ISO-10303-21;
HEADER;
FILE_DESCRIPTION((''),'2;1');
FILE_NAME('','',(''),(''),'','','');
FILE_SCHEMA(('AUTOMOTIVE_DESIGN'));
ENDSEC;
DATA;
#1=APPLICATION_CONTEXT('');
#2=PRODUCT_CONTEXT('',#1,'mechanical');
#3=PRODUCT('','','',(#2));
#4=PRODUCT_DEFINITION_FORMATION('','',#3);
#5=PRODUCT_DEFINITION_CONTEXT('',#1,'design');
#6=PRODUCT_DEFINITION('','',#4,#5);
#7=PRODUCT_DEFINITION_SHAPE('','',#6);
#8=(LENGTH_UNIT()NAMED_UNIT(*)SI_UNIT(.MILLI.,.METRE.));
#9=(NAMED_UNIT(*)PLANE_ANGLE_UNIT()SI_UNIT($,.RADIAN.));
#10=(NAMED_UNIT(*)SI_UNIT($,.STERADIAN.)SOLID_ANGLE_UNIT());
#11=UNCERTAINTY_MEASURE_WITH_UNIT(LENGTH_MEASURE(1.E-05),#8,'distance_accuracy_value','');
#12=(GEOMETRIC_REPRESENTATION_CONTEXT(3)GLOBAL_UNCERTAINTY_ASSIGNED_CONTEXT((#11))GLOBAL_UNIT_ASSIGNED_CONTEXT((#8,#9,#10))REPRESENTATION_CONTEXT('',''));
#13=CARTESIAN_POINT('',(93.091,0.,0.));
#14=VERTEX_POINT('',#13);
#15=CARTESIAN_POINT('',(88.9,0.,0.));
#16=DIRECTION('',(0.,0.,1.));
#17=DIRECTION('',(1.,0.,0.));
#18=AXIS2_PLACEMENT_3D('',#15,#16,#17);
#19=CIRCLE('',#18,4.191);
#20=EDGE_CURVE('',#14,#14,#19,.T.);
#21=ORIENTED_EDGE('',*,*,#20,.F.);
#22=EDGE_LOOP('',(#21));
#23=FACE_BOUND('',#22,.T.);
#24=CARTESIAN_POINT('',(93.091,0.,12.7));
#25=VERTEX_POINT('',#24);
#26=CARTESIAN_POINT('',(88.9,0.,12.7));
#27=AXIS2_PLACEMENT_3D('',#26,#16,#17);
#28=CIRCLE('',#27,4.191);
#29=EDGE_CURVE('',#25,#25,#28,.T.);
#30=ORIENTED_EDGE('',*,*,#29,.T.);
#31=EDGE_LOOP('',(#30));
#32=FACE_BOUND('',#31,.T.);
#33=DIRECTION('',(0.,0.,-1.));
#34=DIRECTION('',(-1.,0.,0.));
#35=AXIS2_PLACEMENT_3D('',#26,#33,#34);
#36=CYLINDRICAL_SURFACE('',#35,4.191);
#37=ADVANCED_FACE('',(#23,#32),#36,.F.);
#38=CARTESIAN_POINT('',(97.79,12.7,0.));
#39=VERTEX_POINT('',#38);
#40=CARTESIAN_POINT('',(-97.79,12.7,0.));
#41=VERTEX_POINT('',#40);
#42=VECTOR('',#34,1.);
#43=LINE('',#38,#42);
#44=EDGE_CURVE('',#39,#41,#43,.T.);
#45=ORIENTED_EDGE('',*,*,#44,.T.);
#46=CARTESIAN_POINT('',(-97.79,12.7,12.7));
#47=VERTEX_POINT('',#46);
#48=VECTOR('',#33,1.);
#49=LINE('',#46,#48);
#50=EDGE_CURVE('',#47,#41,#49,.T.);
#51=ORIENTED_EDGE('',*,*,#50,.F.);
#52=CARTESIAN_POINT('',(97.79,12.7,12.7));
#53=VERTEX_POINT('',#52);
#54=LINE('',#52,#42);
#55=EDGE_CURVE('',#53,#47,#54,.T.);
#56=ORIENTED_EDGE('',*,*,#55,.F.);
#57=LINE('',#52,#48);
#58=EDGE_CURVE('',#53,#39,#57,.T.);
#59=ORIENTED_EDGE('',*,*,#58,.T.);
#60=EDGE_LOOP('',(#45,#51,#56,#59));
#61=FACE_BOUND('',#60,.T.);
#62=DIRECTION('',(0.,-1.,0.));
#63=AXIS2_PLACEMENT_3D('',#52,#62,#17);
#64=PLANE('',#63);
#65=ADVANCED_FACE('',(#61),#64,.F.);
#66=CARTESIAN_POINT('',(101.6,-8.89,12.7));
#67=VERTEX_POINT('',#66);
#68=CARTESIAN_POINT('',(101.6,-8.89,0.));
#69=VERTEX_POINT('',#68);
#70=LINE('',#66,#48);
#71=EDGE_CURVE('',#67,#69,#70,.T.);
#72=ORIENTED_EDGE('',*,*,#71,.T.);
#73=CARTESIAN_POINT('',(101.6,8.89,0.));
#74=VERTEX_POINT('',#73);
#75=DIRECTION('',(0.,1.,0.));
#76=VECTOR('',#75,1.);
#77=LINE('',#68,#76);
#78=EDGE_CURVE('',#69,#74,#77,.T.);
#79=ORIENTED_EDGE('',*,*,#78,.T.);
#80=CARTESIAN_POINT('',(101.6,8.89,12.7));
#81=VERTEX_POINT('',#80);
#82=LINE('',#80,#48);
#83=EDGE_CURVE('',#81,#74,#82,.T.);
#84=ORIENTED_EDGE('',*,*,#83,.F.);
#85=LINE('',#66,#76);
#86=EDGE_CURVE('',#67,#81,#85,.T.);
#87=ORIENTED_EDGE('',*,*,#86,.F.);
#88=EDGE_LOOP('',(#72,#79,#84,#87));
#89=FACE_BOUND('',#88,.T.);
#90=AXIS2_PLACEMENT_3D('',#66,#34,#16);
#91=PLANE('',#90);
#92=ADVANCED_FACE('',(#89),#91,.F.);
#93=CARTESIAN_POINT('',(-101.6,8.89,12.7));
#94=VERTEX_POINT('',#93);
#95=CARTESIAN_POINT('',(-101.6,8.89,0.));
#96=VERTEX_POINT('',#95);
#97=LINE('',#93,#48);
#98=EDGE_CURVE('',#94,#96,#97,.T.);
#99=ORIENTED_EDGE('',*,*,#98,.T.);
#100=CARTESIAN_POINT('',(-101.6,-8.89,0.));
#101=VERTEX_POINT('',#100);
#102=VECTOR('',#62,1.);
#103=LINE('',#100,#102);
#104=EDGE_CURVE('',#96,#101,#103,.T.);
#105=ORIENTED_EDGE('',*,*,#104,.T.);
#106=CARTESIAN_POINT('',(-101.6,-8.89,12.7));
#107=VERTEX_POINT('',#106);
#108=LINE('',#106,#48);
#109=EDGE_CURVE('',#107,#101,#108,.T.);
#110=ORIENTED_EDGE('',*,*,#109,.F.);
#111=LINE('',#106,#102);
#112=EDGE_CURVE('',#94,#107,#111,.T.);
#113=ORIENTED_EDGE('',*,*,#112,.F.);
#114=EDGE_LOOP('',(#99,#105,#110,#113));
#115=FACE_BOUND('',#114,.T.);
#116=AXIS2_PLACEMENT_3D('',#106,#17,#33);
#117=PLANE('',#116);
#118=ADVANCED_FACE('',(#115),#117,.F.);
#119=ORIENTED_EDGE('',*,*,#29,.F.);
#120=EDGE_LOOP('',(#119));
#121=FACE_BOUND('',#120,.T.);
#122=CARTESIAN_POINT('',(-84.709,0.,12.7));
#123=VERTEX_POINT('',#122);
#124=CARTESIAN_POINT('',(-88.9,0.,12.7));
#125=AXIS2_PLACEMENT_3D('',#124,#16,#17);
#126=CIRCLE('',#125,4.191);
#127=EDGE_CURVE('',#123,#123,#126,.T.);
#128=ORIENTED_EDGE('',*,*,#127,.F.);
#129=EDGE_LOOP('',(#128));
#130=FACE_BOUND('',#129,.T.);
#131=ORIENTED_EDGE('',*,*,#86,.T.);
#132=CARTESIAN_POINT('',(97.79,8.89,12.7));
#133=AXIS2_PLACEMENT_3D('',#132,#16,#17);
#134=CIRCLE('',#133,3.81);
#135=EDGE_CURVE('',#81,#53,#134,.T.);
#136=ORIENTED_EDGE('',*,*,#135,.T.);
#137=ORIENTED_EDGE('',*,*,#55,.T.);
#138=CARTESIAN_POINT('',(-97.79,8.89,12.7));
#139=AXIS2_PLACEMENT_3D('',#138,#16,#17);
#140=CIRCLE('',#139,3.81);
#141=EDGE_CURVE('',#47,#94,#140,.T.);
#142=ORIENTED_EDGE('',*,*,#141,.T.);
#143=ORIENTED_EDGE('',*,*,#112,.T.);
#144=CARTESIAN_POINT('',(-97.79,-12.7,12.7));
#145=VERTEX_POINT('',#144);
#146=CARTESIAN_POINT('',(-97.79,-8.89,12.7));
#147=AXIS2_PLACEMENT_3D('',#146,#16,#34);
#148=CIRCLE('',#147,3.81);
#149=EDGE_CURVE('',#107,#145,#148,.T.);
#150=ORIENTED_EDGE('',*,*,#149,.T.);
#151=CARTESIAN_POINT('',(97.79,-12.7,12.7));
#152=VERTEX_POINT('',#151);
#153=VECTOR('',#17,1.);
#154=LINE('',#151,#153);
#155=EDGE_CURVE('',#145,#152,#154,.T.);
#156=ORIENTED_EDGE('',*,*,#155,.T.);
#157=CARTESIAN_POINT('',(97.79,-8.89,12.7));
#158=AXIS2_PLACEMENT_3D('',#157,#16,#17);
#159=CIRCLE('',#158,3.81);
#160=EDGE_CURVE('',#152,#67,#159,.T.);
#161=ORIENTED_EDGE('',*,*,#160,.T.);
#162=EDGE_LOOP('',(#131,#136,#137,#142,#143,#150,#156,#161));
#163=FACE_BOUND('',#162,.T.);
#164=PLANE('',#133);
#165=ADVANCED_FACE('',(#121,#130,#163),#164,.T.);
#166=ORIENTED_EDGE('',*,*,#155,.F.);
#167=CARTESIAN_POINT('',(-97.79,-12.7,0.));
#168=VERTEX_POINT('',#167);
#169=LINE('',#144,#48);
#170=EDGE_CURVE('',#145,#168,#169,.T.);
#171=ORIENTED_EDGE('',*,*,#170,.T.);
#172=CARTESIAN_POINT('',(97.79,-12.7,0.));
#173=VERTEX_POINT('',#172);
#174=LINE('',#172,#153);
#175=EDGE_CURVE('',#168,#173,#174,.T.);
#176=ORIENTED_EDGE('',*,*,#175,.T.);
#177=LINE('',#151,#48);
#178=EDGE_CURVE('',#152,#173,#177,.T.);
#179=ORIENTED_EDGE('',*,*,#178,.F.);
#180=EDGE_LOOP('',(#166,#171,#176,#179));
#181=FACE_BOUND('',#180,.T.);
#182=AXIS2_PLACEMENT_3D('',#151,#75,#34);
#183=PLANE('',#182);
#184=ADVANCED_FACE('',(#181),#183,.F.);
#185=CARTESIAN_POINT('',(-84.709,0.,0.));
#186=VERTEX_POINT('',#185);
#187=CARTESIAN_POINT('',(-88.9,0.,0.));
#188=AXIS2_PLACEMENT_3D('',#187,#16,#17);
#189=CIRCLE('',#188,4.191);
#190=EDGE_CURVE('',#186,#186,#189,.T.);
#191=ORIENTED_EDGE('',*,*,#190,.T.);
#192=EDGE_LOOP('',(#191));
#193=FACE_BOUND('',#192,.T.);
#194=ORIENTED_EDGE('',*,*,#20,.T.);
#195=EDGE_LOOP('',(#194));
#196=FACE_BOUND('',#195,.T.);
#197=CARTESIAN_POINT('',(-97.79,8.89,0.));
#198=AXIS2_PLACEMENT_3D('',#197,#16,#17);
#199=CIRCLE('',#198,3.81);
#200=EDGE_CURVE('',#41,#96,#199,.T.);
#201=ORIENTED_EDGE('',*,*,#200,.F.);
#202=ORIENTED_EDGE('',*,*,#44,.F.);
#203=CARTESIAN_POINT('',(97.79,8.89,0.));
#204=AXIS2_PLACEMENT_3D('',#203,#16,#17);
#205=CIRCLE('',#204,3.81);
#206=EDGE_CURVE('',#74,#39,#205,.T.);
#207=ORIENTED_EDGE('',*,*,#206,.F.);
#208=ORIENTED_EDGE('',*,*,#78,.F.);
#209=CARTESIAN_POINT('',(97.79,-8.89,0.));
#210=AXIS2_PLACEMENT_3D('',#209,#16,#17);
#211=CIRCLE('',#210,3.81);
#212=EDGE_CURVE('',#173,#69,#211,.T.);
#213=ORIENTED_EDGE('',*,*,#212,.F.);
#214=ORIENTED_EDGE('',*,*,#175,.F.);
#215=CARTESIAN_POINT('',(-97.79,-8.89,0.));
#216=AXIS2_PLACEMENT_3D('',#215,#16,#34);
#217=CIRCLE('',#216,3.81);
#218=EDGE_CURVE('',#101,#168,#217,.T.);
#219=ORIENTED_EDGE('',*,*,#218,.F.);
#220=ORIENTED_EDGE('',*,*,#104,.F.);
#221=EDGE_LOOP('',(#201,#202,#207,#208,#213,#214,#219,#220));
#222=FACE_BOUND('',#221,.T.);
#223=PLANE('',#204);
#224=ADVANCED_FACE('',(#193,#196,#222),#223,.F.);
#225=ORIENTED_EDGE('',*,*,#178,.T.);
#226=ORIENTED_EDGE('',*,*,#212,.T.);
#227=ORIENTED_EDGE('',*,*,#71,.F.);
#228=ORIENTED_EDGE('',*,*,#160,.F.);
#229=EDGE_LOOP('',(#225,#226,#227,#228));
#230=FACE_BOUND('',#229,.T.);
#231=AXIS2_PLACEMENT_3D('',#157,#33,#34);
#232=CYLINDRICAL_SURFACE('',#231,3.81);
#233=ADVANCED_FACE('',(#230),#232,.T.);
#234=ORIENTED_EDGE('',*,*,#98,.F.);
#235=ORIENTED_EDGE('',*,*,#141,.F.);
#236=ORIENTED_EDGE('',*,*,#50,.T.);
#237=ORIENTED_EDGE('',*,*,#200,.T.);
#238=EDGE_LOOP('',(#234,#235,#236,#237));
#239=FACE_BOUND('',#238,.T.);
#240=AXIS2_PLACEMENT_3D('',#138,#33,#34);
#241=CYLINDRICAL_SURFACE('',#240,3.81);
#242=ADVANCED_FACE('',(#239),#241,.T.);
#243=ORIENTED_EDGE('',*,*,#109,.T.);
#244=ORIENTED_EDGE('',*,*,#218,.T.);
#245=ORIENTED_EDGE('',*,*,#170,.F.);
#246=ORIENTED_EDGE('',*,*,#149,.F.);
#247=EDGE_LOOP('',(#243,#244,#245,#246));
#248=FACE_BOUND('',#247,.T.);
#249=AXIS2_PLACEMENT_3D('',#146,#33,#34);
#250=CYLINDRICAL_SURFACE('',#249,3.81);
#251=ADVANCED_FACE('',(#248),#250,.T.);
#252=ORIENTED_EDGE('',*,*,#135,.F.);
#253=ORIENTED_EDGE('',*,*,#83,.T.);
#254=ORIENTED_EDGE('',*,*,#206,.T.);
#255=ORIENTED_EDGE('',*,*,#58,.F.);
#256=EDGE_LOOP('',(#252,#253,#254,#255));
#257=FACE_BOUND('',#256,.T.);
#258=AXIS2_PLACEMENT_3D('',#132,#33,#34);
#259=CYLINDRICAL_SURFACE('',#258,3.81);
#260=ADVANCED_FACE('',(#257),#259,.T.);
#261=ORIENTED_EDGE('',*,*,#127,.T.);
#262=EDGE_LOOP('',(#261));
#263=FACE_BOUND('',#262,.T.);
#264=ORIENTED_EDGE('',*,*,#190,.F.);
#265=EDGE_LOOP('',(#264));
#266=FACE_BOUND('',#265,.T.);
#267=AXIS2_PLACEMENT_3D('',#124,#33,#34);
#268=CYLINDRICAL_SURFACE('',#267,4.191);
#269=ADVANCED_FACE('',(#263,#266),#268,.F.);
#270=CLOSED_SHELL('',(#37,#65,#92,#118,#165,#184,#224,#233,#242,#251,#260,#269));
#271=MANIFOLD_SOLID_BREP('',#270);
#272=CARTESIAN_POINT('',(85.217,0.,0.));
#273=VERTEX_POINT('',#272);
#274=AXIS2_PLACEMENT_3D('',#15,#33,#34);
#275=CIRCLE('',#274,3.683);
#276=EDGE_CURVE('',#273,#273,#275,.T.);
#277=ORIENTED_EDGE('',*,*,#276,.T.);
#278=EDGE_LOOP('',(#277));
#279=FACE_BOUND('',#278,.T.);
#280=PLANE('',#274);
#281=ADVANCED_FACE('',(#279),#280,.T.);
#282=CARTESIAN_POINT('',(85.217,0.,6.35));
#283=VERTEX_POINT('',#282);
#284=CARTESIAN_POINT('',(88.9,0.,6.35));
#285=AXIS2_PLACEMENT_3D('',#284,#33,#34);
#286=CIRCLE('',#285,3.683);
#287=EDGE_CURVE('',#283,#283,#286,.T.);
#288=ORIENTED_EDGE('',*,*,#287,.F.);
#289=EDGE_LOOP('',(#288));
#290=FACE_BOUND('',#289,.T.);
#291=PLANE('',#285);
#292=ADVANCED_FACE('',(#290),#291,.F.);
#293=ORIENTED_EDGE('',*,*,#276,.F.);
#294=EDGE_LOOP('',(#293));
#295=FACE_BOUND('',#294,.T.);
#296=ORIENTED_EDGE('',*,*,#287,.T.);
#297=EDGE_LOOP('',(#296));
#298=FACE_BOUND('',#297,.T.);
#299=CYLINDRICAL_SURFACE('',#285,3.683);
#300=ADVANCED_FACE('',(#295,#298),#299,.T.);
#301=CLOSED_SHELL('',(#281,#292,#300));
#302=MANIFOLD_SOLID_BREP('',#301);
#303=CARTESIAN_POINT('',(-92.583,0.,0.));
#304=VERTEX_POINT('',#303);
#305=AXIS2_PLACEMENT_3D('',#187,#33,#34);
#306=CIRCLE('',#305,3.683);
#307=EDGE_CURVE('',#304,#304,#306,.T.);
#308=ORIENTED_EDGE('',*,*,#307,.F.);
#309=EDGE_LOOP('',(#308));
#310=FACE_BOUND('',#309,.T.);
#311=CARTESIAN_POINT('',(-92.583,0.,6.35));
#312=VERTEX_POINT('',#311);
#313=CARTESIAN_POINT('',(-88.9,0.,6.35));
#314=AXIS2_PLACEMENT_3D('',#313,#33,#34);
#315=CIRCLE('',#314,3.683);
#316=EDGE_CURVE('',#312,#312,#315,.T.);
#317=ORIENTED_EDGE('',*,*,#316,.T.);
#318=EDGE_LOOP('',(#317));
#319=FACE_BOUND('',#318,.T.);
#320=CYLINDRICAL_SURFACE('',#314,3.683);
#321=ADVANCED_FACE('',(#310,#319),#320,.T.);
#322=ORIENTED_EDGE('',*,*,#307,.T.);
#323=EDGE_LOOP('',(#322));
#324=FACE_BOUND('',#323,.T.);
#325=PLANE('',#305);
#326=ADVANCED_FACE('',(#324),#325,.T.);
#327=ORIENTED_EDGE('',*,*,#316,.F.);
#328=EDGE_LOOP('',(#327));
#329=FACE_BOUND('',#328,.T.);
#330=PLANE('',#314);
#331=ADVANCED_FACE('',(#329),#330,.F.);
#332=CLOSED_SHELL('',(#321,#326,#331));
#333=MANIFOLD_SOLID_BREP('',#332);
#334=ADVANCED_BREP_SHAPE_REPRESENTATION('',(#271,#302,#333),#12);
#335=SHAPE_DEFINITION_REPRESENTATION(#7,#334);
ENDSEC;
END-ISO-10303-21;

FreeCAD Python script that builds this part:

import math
import FreeCAD as App
import Part
import Sketcher

V = App.Vector
Q = App.Units.Quantity

doc = App.newDocument("Part")
params = doc.addObject("Spreadsheet::Sheet", "Params")
for row, (alias, value) in enumerate([
    ("sketch1_diameter", "0.33 in"),
    ("sketch1_radius", "0.15 in"),
    ("sketch1_width", "7.7 in"),
    ("sketch1_height", "0.7 in"),
    ("pad1_length", "0.5 in"),
    ("sketch2_diameter", "0.29 in"),
    ("pad2_length", "0.25 in"),
    ("sketch3_diameter", "0.29 in"),
    ("pad3_length", "0.25 in"),
], start=1):
    params.set(f"A{row}", alias)
    params.set(f"B{row}", "=" + value)
    params.setAlias(f"B{row}", alias)

body = doc.addObject("PartDesign::Body", "Body")

# Sketch on XY plane
sketch1 = body.newObject("Sketcher::SketchObject", "Sketch")
sketch1.AttachmentSupport = (doc.getObject("XY_Plane"), [""])
sketch1.MapMode = "FlatFace"
sketch1.addGeometry(Part.LineSegment(V(-97.8, -12.7, 0), V(97.8, -12.7, 0)), False)
sketch1.addGeometry(Part.ArcOfCircle(Part.Circle(V(97.8, -8.9, 0), V(0, 0, 1), 3.8), math.radians(-90), math.radians(0)), False)
sketch1.addGeometry(Part.LineSegment(V(101.6, -8.9, 0), V(101.6, 8.9, 0)), False)
sketch1.addGeometry(Part.ArcOfCircle(Part.Circle(V(97.8, 8.9, 0), V(0, 0, 1), 3.8), math.radians(0), math.radians(90)), False)
sketch1.addGeometry(Part.LineSegment(V(97.8, 12.7, 0), V(-97.8, 12.7, 0)), False)
sketch1.addGeometry(Part.ArcOfCircle(Part.Circle(V(-97.8, 8.9, 0), V(0, 0, 1), 3.8), math.radians(90), math.radians(180)), False)
sketch1.addGeometry(Part.LineSegment(V(-101.6, 8.9, 0), V(-101.6, -8.9, 0)), False)
sketch1.addGeometry(Part.ArcOfCircle(Part.Circle(V(-97.8, -8.9, 0), V(0, 0, 1), 3.8), math.radians(-180), math.radians(-90)), False)
sketch1.addGeometry(Part.Circle(V(88.9, 0, 0), V(0, 0, 1), 4.2), False)
sketch1.addGeometry(Part.Circle(V(-88.9, 0, 0), V(0, 0, 1), 4.2), False)
sketch1.addConstraint(Sketcher.Constraint("Tangent", 0, 2, 1, 1))
sketch1.addConstraint(Sketcher.Constraint("Tangent", 1, 2, 2, 1))
sketch1.addConstraint(Sketcher.Constraint("Tangent", 2, 2, 3, 1))
sketch1.addConstraint(Sketcher.Constraint("Tangent", 3, 2, 4, 1))
sketch1.addConstraint(Sketcher.Constraint("Tangent", 4, 2, 5, 1))
sketch1.addConstraint(Sketcher.Constraint("Tangent", 5, 2, 6, 1))
sketch1.addConstraint(Sketcher.Constraint("Tangent", 6, 2, 7, 1))
sketch1.addConstraint(Sketcher.Constraint("Tangent", 7, 2, 0, 1))
sketch1.addConstraint(Sketcher.Constraint("Horizontal", 0))
sketch1.addConstraint(Sketcher.Constraint("Vertical", 2))
sketch1.addConstraint(Sketcher.Constraint("Horizontal", 4))
sketch1.addConstraint(Sketcher.Constraint("Vertical", 6))
sketch1.addConstraint(Sketcher.Constraint("Equal", 1, 3))
sketch1.addConstraint(Sketcher.Constraint("Equal", 3, 5))
sketch1.addConstraint(Sketcher.Constraint("Equal", 5, 7))
sketch1.addConstraint(Sketcher.Constraint("Equal", 8, 9))
sketch1.addConstraint(Sketcher.Constraint("Symmetric", 1, 3, 5, 3, -1, 1))
sketch1.addConstraint(Sketcher.Constraint("Symmetric", 8, 3, 9, 3, -1, 1))
sketch1.addConstraint(Sketcher.Constraint("PointOnObject", 8, 3, -1))
sketch1.addConstraint(Sketcher.Constraint("Diameter", 8, Q("0.33 in")))
sketch1.addConstraint(Sketcher.Constraint("Radius", 1, Q("0.15 in")))
sketch1.addConstraint(Sketcher.Constraint("DistanceX", 0, 1, 0, 2, Q("7.7 in")))
sketch1.addConstraint(Sketcher.Constraint("DistanceY", 2, 1, 2, 2, Q("0.7 in")))
sketch1.addConstraint(Sketcher.Constraint("DistanceX", 9, 3, 8, 3, Q("7 in")))
sketch1.setExpression("Constraints[19]", "Params.sketch1_diameter")
sketch1.setExpression("Constraints[20]", "Params.sketch1_radius")
sketch1.setExpression("Constraints[21]", "Params.sketch1_width")
sketch1.setExpression("Constraints[22]", "Params.sketch1_height")
pad1 = body.newObject("PartDesign::Pad", "Pad")
pad1.Profile = sketch1
pad1.setExpression("Length", "Params.pad1_length")
body2 = doc.addObject("PartDesign::Body", "Body001")

# Sketch on XY plane
sketch2 = body2.newObject("Sketcher::SketchObject", "Sketch001")
sketch2.AttachmentSupport = (doc.getObject("XY_Plane001"), [""])
sketch2.MapMode = "FlatFace"
sketch2.addGeometry(Part.Circle(V(88.9, 0, 0), V(0, 0, 1), 3.7), False)
sketch2.addConstraint(Sketcher.Constraint("PointOnObject", 0, 3, -1))
sketch2.addConstraint(Sketcher.Constraint("Diameter", 0, Q("0.29 in")))
sketch2.addConstraint(Sketcher.Constraint("DistanceX", -1, 1, 0, 3, Q("3.5 in")))
sketch2.setExpression("Constraints[1]", "Params.sketch2_diameter")
pad2 = body2.newObject("PartDesign::Pad", "Pad001")
pad2.Profile = sketch2
pad2.setExpression("Length", "Params.pad2_length")
body3 = doc.addObject("PartDesign::Body", "Body002")

# Sketch on XY plane
sketch3 = body3.newObject("Sketcher::SketchObject", "Sketch002")
sketch3.AttachmentSupport = (doc.getObject("XY_Plane002"), [""])
sketch3.MapMode = "FlatFace"
sketch3.addGeometry(Part.Circle(V(-88.9, 0, 0), V(0, 0, 1), 3.7), False)
sketch3.addConstraint(Sketcher.Constraint("PointOnObject", 0, 3, -1))
sketch3.addConstraint(Sketcher.Constraint("Diameter", 0, Q("0.29 in")))
sketch3.addConstraint(Sketcher.Constraint("DistanceX", 0, 3, -1, 1, Q("3.5 in")))
sketch3.setExpression("Constraints[1]", "Params.sketch3_diameter")
pad3 = body3.newObject("PartDesign::Pad", "Pad002")
pad3.Profile = sketch3
pad3.setExpression("Length", "Params.pad3_length")

doc.recompute()
